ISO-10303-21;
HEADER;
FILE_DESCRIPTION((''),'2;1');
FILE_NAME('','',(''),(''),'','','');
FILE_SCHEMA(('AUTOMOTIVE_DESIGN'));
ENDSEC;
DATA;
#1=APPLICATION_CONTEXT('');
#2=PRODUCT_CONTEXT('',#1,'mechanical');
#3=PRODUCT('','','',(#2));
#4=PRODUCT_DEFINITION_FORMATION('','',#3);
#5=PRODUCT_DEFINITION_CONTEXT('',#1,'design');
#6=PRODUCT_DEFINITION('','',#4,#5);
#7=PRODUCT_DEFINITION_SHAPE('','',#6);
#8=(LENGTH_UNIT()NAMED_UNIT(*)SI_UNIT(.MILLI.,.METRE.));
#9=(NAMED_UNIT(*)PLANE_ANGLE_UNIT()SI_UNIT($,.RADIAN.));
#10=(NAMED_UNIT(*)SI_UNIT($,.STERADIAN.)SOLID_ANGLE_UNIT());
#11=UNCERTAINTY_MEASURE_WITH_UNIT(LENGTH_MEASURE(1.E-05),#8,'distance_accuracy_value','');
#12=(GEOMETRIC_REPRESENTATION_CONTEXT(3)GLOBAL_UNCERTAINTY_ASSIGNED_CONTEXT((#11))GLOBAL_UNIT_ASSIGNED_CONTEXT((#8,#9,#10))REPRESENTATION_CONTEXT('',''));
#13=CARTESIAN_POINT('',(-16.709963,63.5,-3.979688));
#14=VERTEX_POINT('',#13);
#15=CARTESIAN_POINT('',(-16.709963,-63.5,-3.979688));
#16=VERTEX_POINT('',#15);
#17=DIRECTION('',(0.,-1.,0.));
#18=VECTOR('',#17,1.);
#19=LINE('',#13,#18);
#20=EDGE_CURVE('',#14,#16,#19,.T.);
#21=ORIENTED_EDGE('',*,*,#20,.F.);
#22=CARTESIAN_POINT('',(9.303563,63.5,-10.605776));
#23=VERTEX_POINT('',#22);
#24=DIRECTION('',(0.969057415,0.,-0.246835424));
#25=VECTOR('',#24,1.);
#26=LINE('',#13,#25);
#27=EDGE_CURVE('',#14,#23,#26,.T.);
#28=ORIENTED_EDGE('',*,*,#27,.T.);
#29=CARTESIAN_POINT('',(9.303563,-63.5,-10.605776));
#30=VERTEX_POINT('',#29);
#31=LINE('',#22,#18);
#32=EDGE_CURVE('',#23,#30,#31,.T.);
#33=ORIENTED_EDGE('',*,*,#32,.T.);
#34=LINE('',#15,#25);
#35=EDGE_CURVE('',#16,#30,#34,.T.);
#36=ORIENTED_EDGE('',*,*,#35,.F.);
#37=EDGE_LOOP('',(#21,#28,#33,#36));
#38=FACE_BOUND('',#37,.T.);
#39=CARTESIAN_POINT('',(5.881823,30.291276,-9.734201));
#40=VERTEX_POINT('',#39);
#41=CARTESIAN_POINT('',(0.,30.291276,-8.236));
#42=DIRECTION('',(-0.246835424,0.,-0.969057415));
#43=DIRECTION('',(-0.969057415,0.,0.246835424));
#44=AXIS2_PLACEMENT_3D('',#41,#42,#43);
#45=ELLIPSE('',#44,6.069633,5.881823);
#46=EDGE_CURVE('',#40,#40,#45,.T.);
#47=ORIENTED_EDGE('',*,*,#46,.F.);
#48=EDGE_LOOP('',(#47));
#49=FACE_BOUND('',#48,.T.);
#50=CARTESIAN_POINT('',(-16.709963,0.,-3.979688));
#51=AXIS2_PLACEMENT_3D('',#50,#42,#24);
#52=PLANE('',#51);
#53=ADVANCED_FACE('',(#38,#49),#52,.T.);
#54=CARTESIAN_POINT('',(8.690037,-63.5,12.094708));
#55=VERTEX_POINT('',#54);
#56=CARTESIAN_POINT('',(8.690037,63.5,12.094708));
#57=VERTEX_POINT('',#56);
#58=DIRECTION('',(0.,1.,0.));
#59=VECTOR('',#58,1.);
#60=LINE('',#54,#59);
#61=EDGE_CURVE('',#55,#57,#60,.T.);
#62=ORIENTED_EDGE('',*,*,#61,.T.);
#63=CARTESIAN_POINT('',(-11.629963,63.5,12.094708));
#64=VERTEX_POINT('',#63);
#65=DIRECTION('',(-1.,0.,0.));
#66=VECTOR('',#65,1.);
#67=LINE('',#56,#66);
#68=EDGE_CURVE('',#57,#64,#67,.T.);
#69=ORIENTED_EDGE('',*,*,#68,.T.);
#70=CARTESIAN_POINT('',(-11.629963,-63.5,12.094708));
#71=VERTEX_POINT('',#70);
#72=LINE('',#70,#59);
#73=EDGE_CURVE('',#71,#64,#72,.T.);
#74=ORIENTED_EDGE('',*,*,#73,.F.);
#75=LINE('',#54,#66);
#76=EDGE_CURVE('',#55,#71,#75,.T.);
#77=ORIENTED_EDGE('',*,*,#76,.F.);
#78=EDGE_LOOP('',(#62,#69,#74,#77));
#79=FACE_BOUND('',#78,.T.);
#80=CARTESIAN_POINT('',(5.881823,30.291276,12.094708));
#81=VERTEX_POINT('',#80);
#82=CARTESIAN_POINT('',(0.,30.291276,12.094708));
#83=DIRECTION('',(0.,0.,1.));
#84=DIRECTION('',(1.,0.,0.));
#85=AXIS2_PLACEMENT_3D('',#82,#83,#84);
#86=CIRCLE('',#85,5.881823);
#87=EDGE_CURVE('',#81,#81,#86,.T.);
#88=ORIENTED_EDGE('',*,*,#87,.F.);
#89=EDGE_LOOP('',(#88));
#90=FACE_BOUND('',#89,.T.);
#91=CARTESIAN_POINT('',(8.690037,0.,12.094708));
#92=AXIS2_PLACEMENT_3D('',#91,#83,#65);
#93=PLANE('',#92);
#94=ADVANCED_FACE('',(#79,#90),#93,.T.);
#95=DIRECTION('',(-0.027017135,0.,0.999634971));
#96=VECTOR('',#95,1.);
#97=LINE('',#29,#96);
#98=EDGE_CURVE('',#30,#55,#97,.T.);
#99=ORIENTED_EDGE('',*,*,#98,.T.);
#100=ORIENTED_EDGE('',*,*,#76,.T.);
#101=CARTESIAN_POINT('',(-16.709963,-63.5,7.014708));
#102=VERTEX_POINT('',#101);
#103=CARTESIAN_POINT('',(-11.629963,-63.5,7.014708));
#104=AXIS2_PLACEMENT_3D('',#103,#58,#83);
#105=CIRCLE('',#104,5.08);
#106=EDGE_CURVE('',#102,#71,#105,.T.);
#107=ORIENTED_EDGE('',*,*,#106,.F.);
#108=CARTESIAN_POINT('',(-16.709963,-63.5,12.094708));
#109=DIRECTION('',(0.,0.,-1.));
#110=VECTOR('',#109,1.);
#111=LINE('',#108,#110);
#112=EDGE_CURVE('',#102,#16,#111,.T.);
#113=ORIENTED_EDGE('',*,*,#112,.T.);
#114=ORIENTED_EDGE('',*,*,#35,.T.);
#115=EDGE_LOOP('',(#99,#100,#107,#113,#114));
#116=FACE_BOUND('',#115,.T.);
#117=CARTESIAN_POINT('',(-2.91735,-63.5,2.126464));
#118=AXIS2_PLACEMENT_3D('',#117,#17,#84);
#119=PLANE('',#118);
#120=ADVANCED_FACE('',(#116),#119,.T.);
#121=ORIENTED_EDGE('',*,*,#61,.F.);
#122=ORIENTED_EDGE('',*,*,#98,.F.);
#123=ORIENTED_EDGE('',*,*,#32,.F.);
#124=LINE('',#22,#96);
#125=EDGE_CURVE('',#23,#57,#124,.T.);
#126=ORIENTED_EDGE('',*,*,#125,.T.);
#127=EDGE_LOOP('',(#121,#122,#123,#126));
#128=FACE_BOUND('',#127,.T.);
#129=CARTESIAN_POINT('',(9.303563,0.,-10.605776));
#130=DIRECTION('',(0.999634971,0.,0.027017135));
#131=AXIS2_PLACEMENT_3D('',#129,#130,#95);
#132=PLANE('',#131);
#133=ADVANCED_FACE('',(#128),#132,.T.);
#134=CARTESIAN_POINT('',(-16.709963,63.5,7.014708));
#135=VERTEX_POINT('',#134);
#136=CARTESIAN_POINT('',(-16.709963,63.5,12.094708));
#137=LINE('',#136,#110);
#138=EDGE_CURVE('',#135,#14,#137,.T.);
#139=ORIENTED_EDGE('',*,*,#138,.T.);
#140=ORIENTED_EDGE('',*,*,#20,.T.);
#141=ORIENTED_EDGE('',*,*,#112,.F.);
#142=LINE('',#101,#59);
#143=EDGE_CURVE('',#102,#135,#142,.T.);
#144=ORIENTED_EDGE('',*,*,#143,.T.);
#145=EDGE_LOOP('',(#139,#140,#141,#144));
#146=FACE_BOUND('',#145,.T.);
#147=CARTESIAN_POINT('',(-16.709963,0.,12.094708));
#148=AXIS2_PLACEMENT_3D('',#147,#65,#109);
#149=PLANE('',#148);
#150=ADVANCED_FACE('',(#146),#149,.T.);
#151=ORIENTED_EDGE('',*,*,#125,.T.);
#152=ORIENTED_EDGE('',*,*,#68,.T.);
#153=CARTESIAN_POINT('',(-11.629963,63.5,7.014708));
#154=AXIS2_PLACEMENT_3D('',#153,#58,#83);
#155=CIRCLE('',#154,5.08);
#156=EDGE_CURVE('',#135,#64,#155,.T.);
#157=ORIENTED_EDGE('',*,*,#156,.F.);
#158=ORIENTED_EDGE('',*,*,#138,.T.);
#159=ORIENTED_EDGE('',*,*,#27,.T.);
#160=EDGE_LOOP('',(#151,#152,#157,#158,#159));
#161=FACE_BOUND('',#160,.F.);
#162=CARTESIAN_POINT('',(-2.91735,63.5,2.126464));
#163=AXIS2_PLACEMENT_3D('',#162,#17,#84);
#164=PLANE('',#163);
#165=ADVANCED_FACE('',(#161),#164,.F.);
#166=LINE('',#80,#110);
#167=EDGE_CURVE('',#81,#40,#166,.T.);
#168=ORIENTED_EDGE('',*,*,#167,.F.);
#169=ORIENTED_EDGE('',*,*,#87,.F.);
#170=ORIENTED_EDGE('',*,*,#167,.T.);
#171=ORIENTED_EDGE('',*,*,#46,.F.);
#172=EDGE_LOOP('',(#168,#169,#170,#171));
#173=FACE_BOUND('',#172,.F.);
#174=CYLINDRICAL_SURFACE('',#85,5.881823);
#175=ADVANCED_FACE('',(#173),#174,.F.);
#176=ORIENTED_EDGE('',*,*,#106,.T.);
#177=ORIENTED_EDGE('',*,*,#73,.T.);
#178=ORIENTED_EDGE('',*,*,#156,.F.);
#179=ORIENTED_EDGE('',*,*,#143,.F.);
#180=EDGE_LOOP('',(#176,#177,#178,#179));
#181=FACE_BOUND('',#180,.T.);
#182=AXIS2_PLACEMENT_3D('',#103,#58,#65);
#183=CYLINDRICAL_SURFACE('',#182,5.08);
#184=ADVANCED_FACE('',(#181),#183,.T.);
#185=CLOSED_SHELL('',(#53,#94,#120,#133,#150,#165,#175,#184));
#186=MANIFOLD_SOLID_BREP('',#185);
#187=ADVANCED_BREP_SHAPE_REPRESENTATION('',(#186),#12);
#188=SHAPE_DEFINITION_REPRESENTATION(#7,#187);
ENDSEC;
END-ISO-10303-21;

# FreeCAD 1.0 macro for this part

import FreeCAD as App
import Part
import Sketcher

V = App.Vector
Q = App.Units.Quantity


def edges_at(feature, points):
    """Names of the edges that pass closest to the given points."""
    edges = feature.Shape.Edges
    near = lambda p: min(range(len(edges)), key=lambda i: edges[i].distToShape(Part.Vertex(*p))[0])
    return sorted({f"Edge{near(p) + 1}" for p in points})


def add_polygon(sketch, points):
    """Adds a closed chain of lines whose ends are joined by coincident constraints."""
    first, n = sketch.GeometryCount, len(points)
    for a, b in zip(points, points[1:] + points[:1]):
        sketch.addGeometry(Part.LineSegment(App.Vector(*a, 0), App.Vector(*b, 0)), False)
    for i in range(n):
        sketch.addConstraint(Sketcher.Constraint("Coincident", first + i, 2, first + (i + 1) % n, 1))

doc = App.newDocument("Part")
body = doc.addObject("PartDesign::Body", "Body")

# Sketch on XZ plane
sketch1 = doc.addObject("Sketcher::SketchObject", "Sketch")
body.addObject(sketch1)
sketch1.AttachmentSupport = (doc.XZ_Plane, [""])
sketch1.MapMode = "FlatFace"
add_polygon(sketch1, [(-17, 12), (-17, -4), (9, -11), (9, 12)])  # lines 0-3
sketch1.addConstraint([
    Sketcher.Constraint("Vertical", 0),
    Sketcher.Constraint("Horizontal", 3),
    Sketcher.Constraint("DistanceX", 3, 2, 3, 1, Q("1 in")),
    Sketcher.Constraint("DistanceY", 0, 2, 0, 1, 16.074396),
    Sketcher.Constraint("DistanceY", -1, 1, 2, 2, 12.094708),
    Sketcher.Constraint("DistanceY", 1, 2, 0, 2, 6.626088),
    Sketcher.Constraint("Distance", 1, 26.844154),
    Sketcher.Constraint("DistanceX", 0, 2, -1, 1, 16.709963),
])
pad1 = doc.addObject("PartDesign::Pad", "Pad")
body.addObject(pad1)
pad1.Profile = sketch1
pad1.Length = Q("5 in")
pad1.Midplane = True
doc.recompute()

fillet = doc.addObject("PartDesign::Fillet", "Fillet")
body.addObject(fillet)
fillet.Base = (pad1, edges_at(pad1, [(-16.71, 0, 12.095)]))
fillet.Radius = Q("0.2 in")

# Sketch on XY plane
sketch2 = doc.addObject("Sketcher::SketchObject", "Sketch001")
body.addObject(sketch2)
sketch2.AttachmentSupport = (doc.XY_Plane, [""])
sketch2.MapMode = "FlatFace"
sketch2.AttachmentOffset = App.Placement(V(0, 0, 12.094708), App.Rotation())
sketch2.addGeometry(Part.Circle(V(0, 30, 0), V(0, 0, 1), 6), False)
sketch2.addConstraint([
    Sketcher.Constraint("PointOnObject", 0, 3, -2),
    Sketcher.Constraint("Diameter", 0, 11.763646),
    Sketcher.Constraint("DistanceY", -1, 1, 0, 3, 30.291276),
])
pocket1 = doc.addObject("PartDesign::Pocket", "Pocket")
body.addObject(pocket1)
pocket1.Profile = sketch2
pocket1.Length = Q("1 in")

doc.recompute()
